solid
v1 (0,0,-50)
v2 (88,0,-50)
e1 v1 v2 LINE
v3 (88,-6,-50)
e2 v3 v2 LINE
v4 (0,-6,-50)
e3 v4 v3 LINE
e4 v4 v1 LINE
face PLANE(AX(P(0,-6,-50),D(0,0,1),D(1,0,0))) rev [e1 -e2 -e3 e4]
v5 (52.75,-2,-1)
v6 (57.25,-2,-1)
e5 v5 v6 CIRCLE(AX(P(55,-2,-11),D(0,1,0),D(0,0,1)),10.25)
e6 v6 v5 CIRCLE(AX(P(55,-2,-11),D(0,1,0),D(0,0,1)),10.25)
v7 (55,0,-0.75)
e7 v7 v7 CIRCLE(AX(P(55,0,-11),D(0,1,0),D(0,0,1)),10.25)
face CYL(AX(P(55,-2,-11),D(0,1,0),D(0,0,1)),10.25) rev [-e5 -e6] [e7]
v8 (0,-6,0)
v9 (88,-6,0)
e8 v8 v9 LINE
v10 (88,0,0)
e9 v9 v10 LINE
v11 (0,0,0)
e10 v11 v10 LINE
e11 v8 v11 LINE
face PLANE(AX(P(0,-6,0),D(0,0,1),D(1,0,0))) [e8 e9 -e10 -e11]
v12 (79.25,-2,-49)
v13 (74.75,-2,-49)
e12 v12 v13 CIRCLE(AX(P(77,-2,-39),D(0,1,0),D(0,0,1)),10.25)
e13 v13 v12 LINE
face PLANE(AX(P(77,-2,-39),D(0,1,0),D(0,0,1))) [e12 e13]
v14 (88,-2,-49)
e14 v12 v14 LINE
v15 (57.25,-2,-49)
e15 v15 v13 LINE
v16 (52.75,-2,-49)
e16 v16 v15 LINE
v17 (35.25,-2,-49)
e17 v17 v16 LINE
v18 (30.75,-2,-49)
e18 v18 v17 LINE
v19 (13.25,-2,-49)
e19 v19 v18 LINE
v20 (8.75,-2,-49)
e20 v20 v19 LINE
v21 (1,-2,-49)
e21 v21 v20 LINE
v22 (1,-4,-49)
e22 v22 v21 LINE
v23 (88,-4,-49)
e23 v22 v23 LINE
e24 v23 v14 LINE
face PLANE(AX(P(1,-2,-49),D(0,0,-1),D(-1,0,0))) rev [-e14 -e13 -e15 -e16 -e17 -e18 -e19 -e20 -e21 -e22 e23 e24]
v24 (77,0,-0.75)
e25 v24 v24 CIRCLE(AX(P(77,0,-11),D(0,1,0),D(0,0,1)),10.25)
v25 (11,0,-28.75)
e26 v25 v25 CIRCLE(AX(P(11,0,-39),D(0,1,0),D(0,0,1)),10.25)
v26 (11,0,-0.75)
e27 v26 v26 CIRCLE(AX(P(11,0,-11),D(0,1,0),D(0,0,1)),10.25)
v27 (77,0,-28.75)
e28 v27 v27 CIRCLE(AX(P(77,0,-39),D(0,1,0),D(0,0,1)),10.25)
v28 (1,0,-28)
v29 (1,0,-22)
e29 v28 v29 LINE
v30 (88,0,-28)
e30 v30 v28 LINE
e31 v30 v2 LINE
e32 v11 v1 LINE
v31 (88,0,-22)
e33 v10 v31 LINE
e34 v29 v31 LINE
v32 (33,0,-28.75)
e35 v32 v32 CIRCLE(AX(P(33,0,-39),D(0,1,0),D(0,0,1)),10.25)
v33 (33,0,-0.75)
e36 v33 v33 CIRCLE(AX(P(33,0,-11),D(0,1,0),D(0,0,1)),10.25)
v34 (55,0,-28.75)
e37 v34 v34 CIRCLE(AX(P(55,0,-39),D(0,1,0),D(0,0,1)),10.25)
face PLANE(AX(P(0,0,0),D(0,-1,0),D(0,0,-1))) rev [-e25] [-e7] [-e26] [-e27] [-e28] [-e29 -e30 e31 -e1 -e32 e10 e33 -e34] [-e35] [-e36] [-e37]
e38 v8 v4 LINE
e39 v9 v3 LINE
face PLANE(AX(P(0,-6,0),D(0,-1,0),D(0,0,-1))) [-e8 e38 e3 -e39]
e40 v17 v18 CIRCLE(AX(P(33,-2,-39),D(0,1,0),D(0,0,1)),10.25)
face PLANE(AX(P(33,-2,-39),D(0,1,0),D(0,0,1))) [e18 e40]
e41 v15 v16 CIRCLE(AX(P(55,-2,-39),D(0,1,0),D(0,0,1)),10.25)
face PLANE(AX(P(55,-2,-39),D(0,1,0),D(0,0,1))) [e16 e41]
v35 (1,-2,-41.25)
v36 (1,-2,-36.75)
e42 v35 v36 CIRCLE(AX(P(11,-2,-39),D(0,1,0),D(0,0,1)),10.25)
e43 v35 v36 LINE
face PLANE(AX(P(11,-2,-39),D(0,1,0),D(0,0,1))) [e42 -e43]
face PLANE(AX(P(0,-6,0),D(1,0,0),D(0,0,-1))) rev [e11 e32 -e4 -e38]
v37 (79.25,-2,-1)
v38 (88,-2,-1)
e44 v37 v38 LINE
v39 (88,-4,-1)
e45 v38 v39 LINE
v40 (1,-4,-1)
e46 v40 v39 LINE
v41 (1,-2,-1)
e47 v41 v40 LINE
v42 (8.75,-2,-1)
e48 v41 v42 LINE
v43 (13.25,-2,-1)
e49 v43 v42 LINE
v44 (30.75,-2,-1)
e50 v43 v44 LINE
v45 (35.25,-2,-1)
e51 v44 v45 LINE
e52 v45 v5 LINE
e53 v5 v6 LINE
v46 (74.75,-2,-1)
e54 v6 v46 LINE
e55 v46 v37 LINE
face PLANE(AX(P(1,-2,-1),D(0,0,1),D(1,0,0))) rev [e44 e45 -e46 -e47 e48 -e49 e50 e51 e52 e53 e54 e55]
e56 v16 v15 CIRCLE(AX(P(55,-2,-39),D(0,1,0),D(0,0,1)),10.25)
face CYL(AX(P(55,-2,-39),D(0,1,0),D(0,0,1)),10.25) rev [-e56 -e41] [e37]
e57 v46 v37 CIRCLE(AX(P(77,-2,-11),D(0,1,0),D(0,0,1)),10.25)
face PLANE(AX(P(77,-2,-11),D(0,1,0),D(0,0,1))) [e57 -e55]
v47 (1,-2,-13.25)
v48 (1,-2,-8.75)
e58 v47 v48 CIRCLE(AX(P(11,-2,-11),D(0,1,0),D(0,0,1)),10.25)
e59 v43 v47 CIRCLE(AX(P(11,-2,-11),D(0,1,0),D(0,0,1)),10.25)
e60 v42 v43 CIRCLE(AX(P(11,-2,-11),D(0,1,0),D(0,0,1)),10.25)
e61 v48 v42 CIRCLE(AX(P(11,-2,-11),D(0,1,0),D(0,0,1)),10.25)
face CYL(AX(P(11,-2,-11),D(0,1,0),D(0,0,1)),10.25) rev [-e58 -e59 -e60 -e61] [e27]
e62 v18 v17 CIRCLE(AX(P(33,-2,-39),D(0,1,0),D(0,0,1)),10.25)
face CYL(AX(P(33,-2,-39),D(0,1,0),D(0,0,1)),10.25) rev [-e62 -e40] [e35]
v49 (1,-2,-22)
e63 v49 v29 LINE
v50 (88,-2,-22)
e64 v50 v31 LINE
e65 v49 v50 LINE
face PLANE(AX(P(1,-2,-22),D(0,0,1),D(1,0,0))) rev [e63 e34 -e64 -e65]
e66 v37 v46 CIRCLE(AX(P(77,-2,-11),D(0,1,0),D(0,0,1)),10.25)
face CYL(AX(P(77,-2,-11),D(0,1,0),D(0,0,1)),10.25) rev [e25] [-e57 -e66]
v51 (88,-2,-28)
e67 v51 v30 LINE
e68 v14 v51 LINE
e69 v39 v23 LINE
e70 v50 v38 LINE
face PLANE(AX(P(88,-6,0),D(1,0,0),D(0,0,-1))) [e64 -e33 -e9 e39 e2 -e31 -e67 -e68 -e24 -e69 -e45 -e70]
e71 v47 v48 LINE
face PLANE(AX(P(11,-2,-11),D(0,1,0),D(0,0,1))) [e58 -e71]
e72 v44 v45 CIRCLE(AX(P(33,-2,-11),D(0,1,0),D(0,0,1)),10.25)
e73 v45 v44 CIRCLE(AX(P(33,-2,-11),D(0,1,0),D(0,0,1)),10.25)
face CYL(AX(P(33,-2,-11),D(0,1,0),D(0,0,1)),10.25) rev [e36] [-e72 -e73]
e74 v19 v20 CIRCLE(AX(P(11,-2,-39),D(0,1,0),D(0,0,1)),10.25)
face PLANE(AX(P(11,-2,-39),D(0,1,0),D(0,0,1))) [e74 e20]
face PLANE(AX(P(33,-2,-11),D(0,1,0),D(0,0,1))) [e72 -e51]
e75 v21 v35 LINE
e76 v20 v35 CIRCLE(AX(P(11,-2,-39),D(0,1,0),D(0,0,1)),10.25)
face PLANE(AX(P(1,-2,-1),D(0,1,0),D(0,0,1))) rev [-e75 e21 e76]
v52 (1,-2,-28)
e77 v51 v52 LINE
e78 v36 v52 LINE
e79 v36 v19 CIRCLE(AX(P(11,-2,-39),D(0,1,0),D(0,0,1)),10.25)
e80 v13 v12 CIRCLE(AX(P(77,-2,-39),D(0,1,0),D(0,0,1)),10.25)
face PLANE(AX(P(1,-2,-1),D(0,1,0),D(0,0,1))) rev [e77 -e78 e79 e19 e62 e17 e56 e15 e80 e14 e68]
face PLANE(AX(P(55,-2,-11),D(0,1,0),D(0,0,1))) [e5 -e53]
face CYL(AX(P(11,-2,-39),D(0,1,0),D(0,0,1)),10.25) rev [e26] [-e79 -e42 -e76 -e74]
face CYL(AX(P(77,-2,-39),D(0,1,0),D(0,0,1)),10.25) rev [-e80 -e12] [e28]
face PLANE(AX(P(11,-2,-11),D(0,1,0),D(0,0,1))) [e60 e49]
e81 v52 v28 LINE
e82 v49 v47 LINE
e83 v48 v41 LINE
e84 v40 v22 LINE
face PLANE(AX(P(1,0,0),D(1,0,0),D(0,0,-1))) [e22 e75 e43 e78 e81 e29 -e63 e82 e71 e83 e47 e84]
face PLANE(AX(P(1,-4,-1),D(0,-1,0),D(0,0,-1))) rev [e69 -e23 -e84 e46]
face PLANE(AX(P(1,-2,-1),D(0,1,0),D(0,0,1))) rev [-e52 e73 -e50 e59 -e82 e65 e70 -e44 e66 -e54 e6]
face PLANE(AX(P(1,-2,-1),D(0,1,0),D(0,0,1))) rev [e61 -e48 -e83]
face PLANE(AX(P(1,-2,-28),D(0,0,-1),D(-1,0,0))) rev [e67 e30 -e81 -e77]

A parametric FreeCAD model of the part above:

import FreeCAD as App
import Part
import Sketcher

V = App.Vector
Q = App.Units.Quantity

doc = App.newDocument("Part")
body = doc.addObject("PartDesign::Body", "Body")

sketch1 = body.newObject("Sketcher::SketchObject", "Sketch")
sketch1.AttachmentSupport = (doc.getObject("XZ_Plane"), [""])
sketch1.MapMode = "FlatFace"
sketch1.addGeometry([
    Part.LineSegment(V(0, -50, 0), V(0, 0, 0)),
    Part.LineSegment(V(0, 0, 0), V(88, 0, 0)),
    Part.LineSegment(V(88, 0, 0), V(88, -50, 0)),
    Part.LineSegment(V(88, -50, 0), V(0, -50, 0)),
], False)
sketch1.addConstraint([
    Sketcher.Constraint("Coincident", 0, 2, 1, 1),
    Sketcher.Constraint("Coincident", 1, 2, 2, 1),
    Sketcher.Constraint("Coincident", 2, 2, 3, 1),
    Sketcher.Constraint("Coincident", 3, 2, 0, 1),
    Sketcher.Constraint("Vertical", 0),
    Sketcher.Constraint("Horizontal", 1),
    Sketcher.Constraint("Vertical", 2),
    Sketcher.Constraint("Horizontal", 3),
    Sketcher.Constraint("Coincident", 0, 2, -1, 1),
    Sketcher.Constraint("DistanceX", 1, 1, 1, 2, Q("88 mm")),
    Sketcher.Constraint("DistanceY", 0, 1, 0, 2, Q("50 mm")),
])
pad1 = body.newObject("PartDesign::Pad", "Pad")
pad1.Profile = sketch1
pad1.Length = 6

sketch2 = body.newObject("Sketcher::SketchObject", "Sketch001")
sketch2.AttachmentSupport = (doc.getObject("YZ_Plane"), [""])
sketch2.MapMode = "FlatFace"
sketch2.AttachmentOffset = App.Placement(V(0, 0, 88), App.Rotation())
sketch2.addGeometry([
    Part.LineSegment(V(-2, -1, 0), V(-4, -1, 0)),
    Part.LineSegment(V(-4, -1, 0), V(-4, -49, 0)),
    Part.LineSegment(V(-4, -49, 0), V(-2, -49, 0)),
    Part.LineSegment(V(-2, -49, 0), V(-2, -1, 0)),
], False)
sketch2.addConstraint([
    Sketcher.Constraint("Coincident", 0, 2, 1, 1),
    Sketcher.Constraint("Coincident", 1, 2, 2, 1),
    Sketcher.Constraint("Coincident", 2, 2, 3, 1),
    Sketcher.Constraint("Coincident", 3, 2, 0, 1),
    Sketcher.Constraint("Horizontal", 0),
    Sketcher.Constraint("Vertical", 1),
    Sketcher.Constraint("Horizontal", 2),
    Sketcher.Constraint("Vertical", 3),
    Sketcher.Constraint("DistanceX", 0, 2, 0, 1, Q("2 mm")),
    Sketcher.Constraint("DistanceY", 1, 2, 1, 1, Q("48 mm")),
    Sketcher.Constraint("DistanceX", 0, 2, -1, 1, Q("4 mm")),
    Sketcher.Constraint("DistanceY", 0, 2, -1, 1, Q("1 mm")),
])
pocket1 = body.newObject("PartDesign::Pocket", "Pocket")
pocket1.Profile = sketch2
pocket1.Length = 87

sketch3 = body.newObject("Sketcher::SketchObject", "Sketch002")
sketch3.AttachmentSupport = (doc.getObject("XZ_Plane"), [""])
sketch3.MapMode = "FlatFace"
sketch3.addGeometry(Part.Circle(V(77, -11, 0), V(0, 0, 1), 10), False)
sketch3.addConstraint([
    Sketcher.Constraint("Diameter", 0, Q("20.5 mm")),
    Sketcher.Constraint("DistanceX", -1, 1, 0, 3, Q("77 mm")),
    Sketcher.Constraint("DistanceY", 0, 3, -1, 1, Q("11 mm")),
])
pocket2 = body.newObject("PartDesign::Pocket", "Pocket001")
pocket2.Profile = sketch3
pocket2.Length = 2
pocket2.Reversed = True
doc.recompute()

linearpattern = body.newObject("PartDesign::LinearPattern", "LinearPattern")
linearpattern.Originals = [pocket2]
linearpattern.Direction = (doc.getObject("X_Axis"), [""])
linearpattern.Mode = "offset"
linearpattern.Offset = 22
linearpattern.Occurrences = 4
linearpattern.Reversed = True
body.Tip = linearpattern

sketch4 = body.newObject("Sketcher::SketchObject", "Sketch003")
sketch4.AttachmentSupport = (doc.getObject("XZ_Plane"), [""])
sketch4.MapMode = "FlatFace"
sketch4.addGeometry(Part.Circle(V(77, -39, 0), V(0, 0, 1), 10), False)
sketch4.addConstraint([
    Sketcher.Constraint("Diameter", 0, Q("20.5 mm")),
    Sketcher.Constraint("DistanceX", -1, 1, 0, 3, Q("77 mm")),
    Sketcher.Constraint("DistanceY", 0, 3, -1, 1, Q("39 mm")),
])
pocket3 = body.newObject("PartDesign::Pocket", "Pocket002")
pocket3.Profile = sketch4
pocket3.Length = 2
pocket3.Reversed = True
doc.recompute()

linearpattern2 = body.newObject("PartDesign::LinearPattern", "LinearPattern001")
linearpattern2.Originals = [pocket3]
linearpattern2.Direction = (doc.getObject("X_Axis"), [""])
linearpattern2.Mode = "offset"
linearpattern2.Offset = 22
linearpattern2.Occurrences = 4
linearpattern2.Reversed = True
body.Tip = linearpattern2

sketch5 = body.newObject("Sketcher::SketchObject", "Sketch004")
sketch5.AttachmentSupport = (doc.getObject("XZ_Plane"), [""])
sketch5.MapMode = "FlatFace"
sketch5.addGeometry([
    Part.LineSegment(V(1, -28, 0), V(1, -22, 0)),
    Part.LineSegment(V(1, -22, 0), V(88, -22, 0)),
    Part.LineSegment(V(88, -22, 0), V(88, -28, 0)),
    Part.LineSegment(V(88, -28, 0), V(1, -28, 0)),
], False)
sketch5.addConstraint([
    Sketcher.Constraint("Coincident", 0, 2, 1, 1),
    Sketcher.Constraint("Coincident", 1, 2, 2, 1),
    Sketcher.Constraint("Coincident", 2, 2, 3, 1),
    Sketcher.Constraint("Coincident", 3, 2, 0, 1),
    Sketcher.Constraint("Vertical", 0),
    Sketcher.Constraint("Horizontal", 1),
    Sketcher.Constraint("Vertical", 2),
    Sketcher.Constraint("Horizontal", 3),
    Sketcher.Constraint("DistanceX", 1, 1, 1, 2, Q("87 mm")),
    Sketcher.Constraint("DistanceY", 0, 1, 0, 2, Q("6 mm")),
    Sketcher.Constraint("DistanceX", -1, 1, 0, 2, Q("1 mm")),
    Sketcher.Constraint("DistanceY", 0, 2, -1, 1, Q("22 mm")),
])
pocket4 = body.newObject("PartDesign::Pocket", "Pocket003")
pocket4.Profile = sketch5
pocket4.Length = 2
pocket4.Reversed = True

doc.recompute()
